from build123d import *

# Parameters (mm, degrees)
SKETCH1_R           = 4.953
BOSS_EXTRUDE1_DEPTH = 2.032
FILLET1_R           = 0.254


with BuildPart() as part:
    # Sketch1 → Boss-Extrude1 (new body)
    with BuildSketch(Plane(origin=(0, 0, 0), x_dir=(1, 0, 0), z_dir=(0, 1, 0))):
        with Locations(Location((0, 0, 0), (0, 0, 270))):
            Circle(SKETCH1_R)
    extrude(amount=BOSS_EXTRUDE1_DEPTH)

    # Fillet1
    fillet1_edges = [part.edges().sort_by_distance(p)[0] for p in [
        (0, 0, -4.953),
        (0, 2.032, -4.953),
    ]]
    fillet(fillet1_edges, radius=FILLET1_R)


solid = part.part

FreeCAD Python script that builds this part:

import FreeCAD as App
import Part
import Sketcher
Q = App.Units.Quantity


def edges_at(feature, points):
    """Names of the edges that pass closest to the given points."""
    edges = feature.Shape.Edges
    near = lambda p: min(range(len(edges)), key=lambda i: edges[i].distToShape(Part.Vertex(*p))[0])
    return sorted({f"Edge{near(p) + 1}" for p in points})

doc = App.newDocument("Part")
body = doc.addObject("PartDesign::Body", "Body")

sketch1 = doc.addObject("Sketcher::SketchObject", "Sketch")
body.addObject(sketch1)
sketch1.AttachmentSupport = (doc.XZ_Plane, [""])
sketch1.MapMode = "FlatFace"
sketch1.addGeometry(Part.Circle(App.Vector(0, 0, 0), App.Vector(0, 0, 1), 5), False)
sketch1.addConstraint([
    Sketcher.Constraint("Coincident", 0, 3, -1, 1),
    Sketcher.Constraint("Diameter", 0, Q("0.39 in")),
])
pad1 = doc.addObject("PartDesign::Pad", "Pad")
body.addObject(pad1)
pad1.Profile = sketch1
pad1.Length = Q("0.08 in")
pad1.Reversed = True
doc.recompute()

fillet = doc.addObject("PartDesign::Fillet", "Fillet")
body.addObject(fillet)
fillet.Base = (pad1, edges_at(pad1, [(0, 0, -4.953), (0, 2.032, -4.953)]))
fillet.Radius = Q("0.01 in")

doc.recompute()
